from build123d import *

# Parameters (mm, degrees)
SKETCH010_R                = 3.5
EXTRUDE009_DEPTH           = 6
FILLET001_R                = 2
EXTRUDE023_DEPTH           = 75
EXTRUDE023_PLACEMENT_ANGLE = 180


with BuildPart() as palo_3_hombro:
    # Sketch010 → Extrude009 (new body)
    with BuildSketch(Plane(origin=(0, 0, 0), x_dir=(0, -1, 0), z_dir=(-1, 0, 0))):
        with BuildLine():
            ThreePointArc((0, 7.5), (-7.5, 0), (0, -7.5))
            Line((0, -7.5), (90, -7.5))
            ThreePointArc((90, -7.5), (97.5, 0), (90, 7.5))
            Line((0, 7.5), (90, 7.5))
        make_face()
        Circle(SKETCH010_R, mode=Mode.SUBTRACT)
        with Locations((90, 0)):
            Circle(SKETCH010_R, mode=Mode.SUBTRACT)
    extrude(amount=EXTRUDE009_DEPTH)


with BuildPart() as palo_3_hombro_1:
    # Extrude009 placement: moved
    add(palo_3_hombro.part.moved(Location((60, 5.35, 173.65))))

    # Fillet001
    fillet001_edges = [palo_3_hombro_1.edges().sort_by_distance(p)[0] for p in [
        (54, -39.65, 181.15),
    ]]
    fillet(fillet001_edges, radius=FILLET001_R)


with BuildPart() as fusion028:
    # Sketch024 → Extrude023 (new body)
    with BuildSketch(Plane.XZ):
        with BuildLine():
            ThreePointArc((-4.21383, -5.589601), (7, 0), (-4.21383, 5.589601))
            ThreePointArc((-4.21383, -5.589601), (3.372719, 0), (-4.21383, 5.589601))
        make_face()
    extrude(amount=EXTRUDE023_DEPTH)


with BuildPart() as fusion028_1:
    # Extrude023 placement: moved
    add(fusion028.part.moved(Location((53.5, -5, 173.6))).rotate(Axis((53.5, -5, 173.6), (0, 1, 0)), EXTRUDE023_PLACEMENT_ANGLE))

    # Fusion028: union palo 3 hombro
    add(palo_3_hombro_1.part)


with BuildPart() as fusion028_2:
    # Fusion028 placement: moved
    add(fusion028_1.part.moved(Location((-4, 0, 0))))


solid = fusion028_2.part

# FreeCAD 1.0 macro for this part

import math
import FreeCAD as App
import Part
import Sketcher
from FreeCAD import Vector


def edges_at(feature, points):
    """Names of the edges that pass closest to the given points."""
    edges = feature.Shape.Edges
    near = lambda p: min(range(len(edges)), key=lambda i: edges[i].distToShape(Part.Vertex(*p))[0])
    return sorted({f"Edge{near(p) + 1}" for p in points})

doc = App.newDocument("Part")
body = doc.addObject("PartDesign::Body", "Body")

sketch1 = doc.addObject("Sketcher::SketchObject", "Sketch")
body.addObject(sketch1)
sketch1.AttachmentSupport = (doc.YZ_Plane, [""])
sketch1.MapMode = "FlatFace"
sketch1.addGeometry(Part.ArcOfCircle(Part.Circle(Vector(0, 0, 0), Vector(0, 0, 1), 7.5), math.radians(-90), math.radians(90)), False)
sketch1.addGeometry(Part.LineSegment(Vector(0, -7.5, 0), Vector(-90, -7.5, 0)), False)
sketch1.addGeometry(Part.ArcOfCircle(Part.Circle(Vector(-90, 0, 0), Vector(0, 0, 1), 7.5), math.radians(90), math.radians(270)), False)
sketch1.addGeometry(Part.LineSegment(Vector(-90, 7.5, 0), Vector(0, 7.5, 0)), False)
sketch1.addGeometry(Part.Circle(Vector(0, 0, 0), Vector(0, 0, 1), 3.5), False)
sketch1.addGeometry(Part.Circle(Vector(-90, 0, 0), Vector(0, 0, 1), 3.5), False)
sketch1.addConstraint(Sketcher.Constraint("Tangent", 0, 1, 1, 1))
sketch1.addConstraint(Sketcher.Constraint("Tangent", 1, 2, 2, 2))
sketch1.addConstraint(Sketcher.Constraint("Tangent", 2, 1, 3, 1))
sketch1.addConstraint(Sketcher.Constraint("Tangent", 3, 2, 0, 2))
sketch1.addConstraint(Sketcher.Constraint("Horizontal", 1))
sketch1.addConstraint(Sketcher.Constraint("Horizontal", 3))
sketch1.addConstraint(Sketcher.Constraint("Coincident", 0, 3, -1, 1))
sketch1.addConstraint(Sketcher.Constraint("Coincident", 4, 3, -1, 1))
sketch1.addConstraint(Sketcher.Constraint("Coincident", 5, 3, 2, 3))
sketch1.addConstraint(Sketcher.Constraint("Equal", 4, 5))
sketch1.addConstraint(Sketcher.Constraint("Diameter", 4, 7.0))
sketch1.addConstraint(Sketcher.Constraint("Radius", 0, 7.5))
sketch1.addConstraint(Sketcher.Constraint("DistanceX", 1, 2, 1, 1, 90.0))
pad1 = doc.addObject("PartDesign::Pad", "Pad")
body.addObject(pad1)
pad1.Profile = sketch1
pad1.Length = 6
pad1.Reversed = True
body2 = doc.addObject("PartDesign::Body", "Body001")
doc.recompute()

body.Placement = App.Placement(Vector(60, 5.35, 173.65), App.Rotation(Vector(0, 0, 1), 0))
boolean = doc.addObject("PartDesign::Boolean", "Boolean")
body2.addObject(boolean)
boolean.Type = "Fuse"
boolean.addObjects([body])
doc.recompute()

fillet = doc.addObject("PartDesign::Fillet", "Fillet")
body2.addObject(fillet)
fillet.Base = (boolean, edges_at(boolean, [(54, -39.65, 181.15)]))
fillet.Radius = 2
body3 = doc.addObject("PartDesign::Body", "Body002")

sketch2 = doc.addObject("Sketcher::SketchObject", "Sketch001")
body3.addObject(sketch2)
sketch2.AttachmentSupport = (doc.getObject("XZ_Plane002"), [""])
sketch2.MapMode = "FlatFace"
sketch2.addGeometry(Part.ArcOfCircle(Part.Circle(Vector(0, 0, 0), Vector(0, 0, 1), 7), math.radians(-127.011527), math.radians(127.011527)), False)
sketch2.addGeometry(Part.ArcOfCircle(Part.Circle(Vector(-2.479703, 0, 0), Vector(0, 0, 1), 5.852422), math.radians(-107.236071), math.radians(107.236071)), False)
sketch2.addConstraint(Sketcher.Constraint("Coincident", 0, 1, 1, 1))
sketch2.addConstraint(Sketcher.Constraint("Coincident", 1, 2, 0, 2))
sketch2.addConstraint(Sketcher.Constraint("Coincident", 0, 3, -1, 1))
sketch2.addConstraint(Sketcher.Constraint("PointOnObject", 1, 3, -1))
sketch2.addConstraint(Sketcher.Constraint("Radius", 0, 7.0))
sketch2.addConstraint(Sketcher.Constraint("Radius", 1, 5.852422))
sketch2.addConstraint(Sketcher.Constraint("DistanceY", 0, 1, -1, 1, 5.589601))
pad2 = doc.addObject("PartDesign::Pad", "Pad001")
body3.addObject(pad2)
pad2.Profile = sketch2
pad2.Length = 75
body4 = doc.addObject("PartDesign::Body", "Body003")
doc.recompute()

body3.Placement = App.Placement(Vector(53.5, -5, 173.6), App.Rotation(Vector(0, 1, 0), 180))
boolean2 = doc.addObject("PartDesign::Boolean", "Boolean001")
body4.addObject(boolean2)
boolean2.Type = "Fuse"
boolean2.addObjects([body3])
doc.recompute()

boolean3 = doc.addObject("PartDesign::Boolean", "Boolean002")
body4.addObject(boolean3)
boolean3.Type = "Fuse"
boolean3.addObjects([body2])
body5 = doc.addObject("PartDesign::Body", "Body004")
doc.recompute()

body4.Placement = App.Placement(Vector(-4, 0, 0), App.Rotation(Vector(0, 0, 1), 0))
boolean4 = doc.addObject("PartDesign::Boolean", "Boolean003")
body5.addObject(boolean4)
boolean4.Type = "Fuse"
boolean4.addObjects([body4])

doc.recompute()
